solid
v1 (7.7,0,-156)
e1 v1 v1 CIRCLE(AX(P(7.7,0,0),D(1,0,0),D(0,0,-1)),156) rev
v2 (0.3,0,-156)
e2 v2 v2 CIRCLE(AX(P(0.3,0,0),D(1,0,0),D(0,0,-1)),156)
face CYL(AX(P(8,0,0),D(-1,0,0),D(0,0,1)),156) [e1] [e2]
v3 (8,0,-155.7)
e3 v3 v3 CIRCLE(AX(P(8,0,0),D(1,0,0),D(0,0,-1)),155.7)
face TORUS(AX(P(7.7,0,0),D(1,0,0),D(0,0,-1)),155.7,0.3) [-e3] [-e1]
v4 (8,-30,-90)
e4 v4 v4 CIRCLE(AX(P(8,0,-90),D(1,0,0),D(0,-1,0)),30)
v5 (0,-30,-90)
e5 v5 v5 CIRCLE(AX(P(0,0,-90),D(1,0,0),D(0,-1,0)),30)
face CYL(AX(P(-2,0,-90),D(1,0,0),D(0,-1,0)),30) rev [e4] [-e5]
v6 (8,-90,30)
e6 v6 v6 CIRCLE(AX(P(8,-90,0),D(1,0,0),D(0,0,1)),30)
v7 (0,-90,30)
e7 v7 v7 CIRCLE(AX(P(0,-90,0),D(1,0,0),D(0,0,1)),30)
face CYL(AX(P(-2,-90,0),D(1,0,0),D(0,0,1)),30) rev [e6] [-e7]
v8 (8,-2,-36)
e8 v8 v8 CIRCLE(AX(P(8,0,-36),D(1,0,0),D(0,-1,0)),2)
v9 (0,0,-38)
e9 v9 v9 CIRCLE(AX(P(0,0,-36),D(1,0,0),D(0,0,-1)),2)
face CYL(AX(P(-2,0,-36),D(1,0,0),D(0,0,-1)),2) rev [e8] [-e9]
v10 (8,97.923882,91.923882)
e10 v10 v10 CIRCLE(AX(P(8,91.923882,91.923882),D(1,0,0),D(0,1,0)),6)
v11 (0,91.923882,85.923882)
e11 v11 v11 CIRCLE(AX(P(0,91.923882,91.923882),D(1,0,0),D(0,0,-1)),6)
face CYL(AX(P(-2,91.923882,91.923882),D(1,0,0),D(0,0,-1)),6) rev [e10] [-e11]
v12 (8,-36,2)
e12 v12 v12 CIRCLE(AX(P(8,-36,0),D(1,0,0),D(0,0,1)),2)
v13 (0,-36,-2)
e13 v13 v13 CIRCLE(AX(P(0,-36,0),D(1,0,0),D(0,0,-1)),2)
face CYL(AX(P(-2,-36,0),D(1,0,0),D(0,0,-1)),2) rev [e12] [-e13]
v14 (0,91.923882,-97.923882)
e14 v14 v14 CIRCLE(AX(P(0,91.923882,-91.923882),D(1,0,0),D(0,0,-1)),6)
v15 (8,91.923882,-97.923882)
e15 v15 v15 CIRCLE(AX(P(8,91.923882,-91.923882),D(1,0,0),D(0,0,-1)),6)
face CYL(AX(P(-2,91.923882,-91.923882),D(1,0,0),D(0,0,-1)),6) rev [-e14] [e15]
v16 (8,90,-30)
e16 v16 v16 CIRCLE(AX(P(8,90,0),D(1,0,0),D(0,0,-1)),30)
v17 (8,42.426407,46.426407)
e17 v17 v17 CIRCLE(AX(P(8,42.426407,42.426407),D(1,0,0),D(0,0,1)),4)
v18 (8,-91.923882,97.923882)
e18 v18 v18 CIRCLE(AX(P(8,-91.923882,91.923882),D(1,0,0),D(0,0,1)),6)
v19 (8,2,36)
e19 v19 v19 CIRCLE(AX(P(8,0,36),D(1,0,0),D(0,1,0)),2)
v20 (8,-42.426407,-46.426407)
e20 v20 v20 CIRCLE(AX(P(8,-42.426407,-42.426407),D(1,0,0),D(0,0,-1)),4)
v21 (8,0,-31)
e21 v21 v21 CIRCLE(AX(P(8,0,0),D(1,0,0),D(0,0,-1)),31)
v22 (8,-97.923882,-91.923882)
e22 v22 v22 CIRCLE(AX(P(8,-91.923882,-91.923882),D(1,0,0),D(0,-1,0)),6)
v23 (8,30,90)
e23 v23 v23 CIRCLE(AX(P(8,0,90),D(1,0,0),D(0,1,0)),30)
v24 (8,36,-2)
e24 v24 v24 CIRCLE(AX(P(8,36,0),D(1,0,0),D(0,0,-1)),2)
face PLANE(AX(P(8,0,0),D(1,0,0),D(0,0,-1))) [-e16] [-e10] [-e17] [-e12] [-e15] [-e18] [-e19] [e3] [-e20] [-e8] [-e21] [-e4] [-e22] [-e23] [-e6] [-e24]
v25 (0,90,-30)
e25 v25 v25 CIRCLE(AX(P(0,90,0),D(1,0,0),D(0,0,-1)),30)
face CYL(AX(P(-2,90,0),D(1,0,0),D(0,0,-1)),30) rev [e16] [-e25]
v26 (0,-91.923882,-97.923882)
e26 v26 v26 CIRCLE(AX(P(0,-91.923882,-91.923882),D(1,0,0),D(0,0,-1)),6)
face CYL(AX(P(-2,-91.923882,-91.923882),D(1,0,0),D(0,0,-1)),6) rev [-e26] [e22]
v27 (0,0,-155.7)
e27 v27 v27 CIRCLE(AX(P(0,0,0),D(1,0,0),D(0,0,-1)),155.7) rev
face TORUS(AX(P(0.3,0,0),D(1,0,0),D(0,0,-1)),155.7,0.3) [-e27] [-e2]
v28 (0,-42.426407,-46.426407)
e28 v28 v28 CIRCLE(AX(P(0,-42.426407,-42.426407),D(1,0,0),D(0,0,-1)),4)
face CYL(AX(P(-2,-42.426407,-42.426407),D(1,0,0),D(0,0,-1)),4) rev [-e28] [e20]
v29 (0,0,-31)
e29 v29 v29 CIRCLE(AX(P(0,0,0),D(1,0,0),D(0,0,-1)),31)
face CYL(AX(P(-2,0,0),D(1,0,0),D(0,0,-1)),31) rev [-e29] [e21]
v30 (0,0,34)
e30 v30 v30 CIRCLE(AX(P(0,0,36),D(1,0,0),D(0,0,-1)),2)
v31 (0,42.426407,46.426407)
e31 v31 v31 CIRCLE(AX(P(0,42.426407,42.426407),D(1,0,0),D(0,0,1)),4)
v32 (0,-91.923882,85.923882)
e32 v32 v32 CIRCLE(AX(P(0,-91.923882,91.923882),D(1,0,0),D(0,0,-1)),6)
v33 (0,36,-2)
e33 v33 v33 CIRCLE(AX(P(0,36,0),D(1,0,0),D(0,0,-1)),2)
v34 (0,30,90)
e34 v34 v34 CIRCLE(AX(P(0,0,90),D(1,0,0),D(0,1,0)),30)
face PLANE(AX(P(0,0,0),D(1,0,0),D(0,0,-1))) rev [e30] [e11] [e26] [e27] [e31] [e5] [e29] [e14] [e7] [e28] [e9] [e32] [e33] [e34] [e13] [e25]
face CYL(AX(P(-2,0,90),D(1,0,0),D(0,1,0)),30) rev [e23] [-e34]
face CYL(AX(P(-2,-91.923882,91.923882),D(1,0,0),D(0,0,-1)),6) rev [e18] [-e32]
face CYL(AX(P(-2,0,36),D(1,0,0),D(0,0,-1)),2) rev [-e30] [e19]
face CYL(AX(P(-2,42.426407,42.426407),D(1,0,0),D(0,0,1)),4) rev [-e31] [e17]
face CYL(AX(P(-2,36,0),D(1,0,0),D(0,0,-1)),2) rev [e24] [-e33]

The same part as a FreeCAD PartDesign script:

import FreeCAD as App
import Part
import Sketcher

V = App.Vector


def edges_at(feature, points):
    """Names of the edges that pass closest to the given points."""
    edges = feature.Shape.Edges
    near = lambda p: min(range(len(edges)), key=lambda i: edges[i].distToShape(Part.Vertex(*p))[0])
    return sorted({f"Edge{near(p) + 1}" for p in points})

doc = App.newDocument("Part")
body = doc.addObject("PartDesign::Body", "Body")

sketch1 = body.newObject("Sketcher::SketchObject", "Sketch")
sketch1.AttachmentSupport = (doc.getObject("YZ_Plane"), [""])
sketch1.MapMode = "FlatFace"
sketch1.addGeometry(Part.Circle(V(0, 0, 0), V(0, 0, 1), 156), False)
sketch1.addConstraint([
    Sketcher.Constraint("Coincident", 0, 3, -1, 1),
    Sketcher.Constraint("Diameter", 0, 312.0),
])
pad1 = body.newObject("PartDesign::Pad", "Pad")
pad1.Profile = sketch1
pad1.Length = 8

sketch2 = body.newObject("Sketcher::SketchObject", "Sketch001")
sketch2.AttachmentSupport = (doc.getObject("YZ_Plane"), [""])
sketch2.MapMode = "FlatFace"
sketch2.AttachmentOffset = App.Placement(V(0, 0, 8), App.Rotation())
sketch2.addGeometry(Part.Circle(V(0, 0, 0), V(0, 0, 1), 31), False)
sketch2.addConstraint([
    Sketcher.Constraint("Coincident", 0, 3, -1, 1),
    Sketcher.Constraint("Diameter", 0, 62.0),
])
pocket1 = body.newObject("PartDesign::Pocket", "Pocket")
pocket1.Profile = sketch2
pocket1.Length = 10

sketch3 = body.newObject("Sketcher::SketchObject", "Sketch002")
sketch3.AttachmentSupport = (doc.getObject("YZ_Plane"), [""])
sketch3.MapMode = "FlatFace"
sketch3.AttachmentOffset = App.Placement(V(0, 0, 8), App.Rotation())
sketch3.addGeometry(Part.Circle(V(92, -92, 0), V(0, 0, 1), 6), False)
sketch3.addConstraint([
    Sketcher.Constraint("Diameter", 0, 12.0),
    Sketcher.Constraint("DistanceX", -1, 1, 0, 3, 91.923882),
    Sketcher.Constraint("DistanceY", 0, 3, -1, 1, 91.923882),
])
pocket2 = body.newObject("PartDesign::Pocket", "Pocket001")
pocket2.Profile = sketch3
pocket2.Length = 10
doc.recompute()

polarpattern = body.newObject("PartDesign::PolarPattern", "PolarPattern")
polarpattern.Originals = [pocket2]
polarpattern.Axis = (doc.getObject("X_Axis"), [""])
polarpattern.Angle = 360
polarpattern.Occurrences = 4
body.Tip = polarpattern

sketch4 = body.newObject("Sketcher::SketchObject", "Sketch003")
sketch4.AttachmentSupport = (doc.getObject("YZ_Plane"), [""])
sketch4.MapMode = "FlatFace"
sketch4.AttachmentOffset = App.Placement(V(0, 0, 8), App.Rotation())
sketch4.addGeometry(Part.Circle(V(36, 0, 0), V(0, 0, 1), 2), False)
sketch4.addConstraint([
    Sketcher.Constraint("PointOnObject", 0, 3, -1),
    Sketcher.Constraint("Diameter", 0, 4.0),
    Sketcher.Constraint("DistanceX", -1, 1, 0, 3, 36.0),
])
pocket3 = body.newObject("PartDesign::Pocket", "Pocket002")
pocket3.Profile = sketch4
pocket3.Length = 10
doc.recompute()

polarpattern2 = body.newObject("PartDesign::PolarPattern", "PolarPattern001")
polarpattern2.Originals = [pocket3]
polarpattern2.Axis = (doc.getObject("X_Axis"), [""])
polarpattern2.Angle = 360
polarpattern2.Occurrences = 4
body.Tip = polarpattern2
doc.recompute()

fillet = body.newObject("PartDesign::Fillet", "Fillet")
fillet.Base = (polarpattern2, edges_at(polarpattern2, [(0, 0, 156), (8, 0, 156)]))
fillet.Radius = 0.3

sketch5 = body.newObject("Sketcher::SketchObject", "Sketch004")
sketch5.AttachmentSupport = (doc.getObject("YZ_Plane"), [""])
sketch5.MapMode = "FlatFace"
sketch5.AttachmentOffset = App.Placement(V(0, 0, 8), App.Rotation())
sketch5.addGeometry(Part.Circle(V(-42.4, -42.4, 0), V(0, 0, 1), 4), False)
sketch5.addConstraint([
    Sketcher.Constraint("Diameter", 0, 8.0),
    Sketcher.Constraint("DistanceX", 0, 3, -1, 1, 42.426407),
    Sketcher.Constraint("DistanceY", 0, 3, -1, 1, 42.426407),
])
pocket4 = body.newObject("PartDesign::Pocket", "Pocket003")
pocket4.Profile = sketch5
pocket4.Length = 10

sketch6 = body.newObject("Sketcher::SketchObject", "Sketch005")
sketch6.AttachmentSupport = (doc.getObject("YZ_Plane"), [""])
sketch6.MapMode = "FlatFace"
sketch6.AttachmentOffset = App.Placement(V(0, 0, 8), App.Rotation())
sketch6.addGeometry(Part.Circle(V(90, 0, 0), V(0, 0, 1), 30), False)
sketch6.addConstraint([
    Sketcher.Constraint("PointOnObject", 0, 3, -1),
    Sketcher.Constraint("Diameter", 0, 60.0),
    Sketcher.Constraint("DistanceX", -1, 1, 0, 3, 90.0),
])
pocket5 = body.newObject("PartDesign::Pocket", "Pocket004")
pocket5.Profile = sketch6
pocket5.Length = 10
doc.recompute()

polarpattern3 = body.newObject("PartDesign::PolarPattern", "PolarPattern002")
polarpattern3.Originals = [pocket5]
polarpattern3.Axis = (doc.getObject("X_Axis"), [""])
polarpattern3.Angle = 360
polarpattern3.Occurrences = 4
body.Tip = polarpattern3
doc.recompute()

polarpattern4 = body.newObject("PartDesign::PolarPattern", "PolarPattern003")
polarpattern4.Originals = [pocket4]
polarpattern4.Axis = (doc.getObject("X_Axis"), [""])
polarpattern4.Angle = 360
polarpattern4.Occurrences = 2
body.Tip = polarpattern4

doc.recompute()
